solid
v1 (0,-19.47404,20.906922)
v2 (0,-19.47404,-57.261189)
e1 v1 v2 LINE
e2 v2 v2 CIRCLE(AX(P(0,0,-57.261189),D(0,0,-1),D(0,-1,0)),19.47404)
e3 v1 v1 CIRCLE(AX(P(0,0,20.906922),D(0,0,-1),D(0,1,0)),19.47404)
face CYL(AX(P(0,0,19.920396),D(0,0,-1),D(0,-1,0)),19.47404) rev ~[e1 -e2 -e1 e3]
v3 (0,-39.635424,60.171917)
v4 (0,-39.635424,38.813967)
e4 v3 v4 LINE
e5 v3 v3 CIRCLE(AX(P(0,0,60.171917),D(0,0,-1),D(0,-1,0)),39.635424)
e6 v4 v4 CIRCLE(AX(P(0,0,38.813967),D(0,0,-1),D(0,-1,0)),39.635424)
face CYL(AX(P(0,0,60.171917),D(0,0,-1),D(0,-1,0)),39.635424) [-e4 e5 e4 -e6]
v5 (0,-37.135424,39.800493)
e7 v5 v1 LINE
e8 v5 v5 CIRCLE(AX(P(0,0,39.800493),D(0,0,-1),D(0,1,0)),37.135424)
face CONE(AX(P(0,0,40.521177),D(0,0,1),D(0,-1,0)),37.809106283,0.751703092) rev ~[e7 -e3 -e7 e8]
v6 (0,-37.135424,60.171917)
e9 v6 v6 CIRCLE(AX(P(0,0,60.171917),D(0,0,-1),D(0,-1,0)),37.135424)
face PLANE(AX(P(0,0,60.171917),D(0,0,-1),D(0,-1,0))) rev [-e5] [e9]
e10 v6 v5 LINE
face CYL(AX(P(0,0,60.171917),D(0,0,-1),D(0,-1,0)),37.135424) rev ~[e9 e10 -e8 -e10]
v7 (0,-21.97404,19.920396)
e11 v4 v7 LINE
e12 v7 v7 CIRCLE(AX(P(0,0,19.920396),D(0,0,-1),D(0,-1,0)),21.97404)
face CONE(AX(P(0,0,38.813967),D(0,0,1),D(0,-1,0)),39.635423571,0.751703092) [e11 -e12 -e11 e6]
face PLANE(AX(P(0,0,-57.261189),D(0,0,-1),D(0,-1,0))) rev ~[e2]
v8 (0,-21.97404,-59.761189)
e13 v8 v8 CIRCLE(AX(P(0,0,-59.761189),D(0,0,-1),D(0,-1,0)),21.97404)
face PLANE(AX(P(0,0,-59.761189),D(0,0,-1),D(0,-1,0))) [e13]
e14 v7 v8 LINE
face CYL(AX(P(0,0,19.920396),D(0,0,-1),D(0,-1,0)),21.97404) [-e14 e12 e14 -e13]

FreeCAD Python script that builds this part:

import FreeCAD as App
import Part
import Sketcher
Q = App.Units.Quantity


def faces_at(feature, points):
    """Names of the faces that lie closest to the given points."""
    faces = feature.Shape.Faces
    near = lambda p: min(range(len(faces)), key=lambda i: faces[i].distToShape(Part.Vertex(*p))[0])
    return sorted({f"Face{near(p) + 1}" for p in points})

doc = App.newDocument("Part")
params = doc.addObject("Spreadsheet::Sheet", "Params")
for row, (alias, value) in enumerate([
    ("revolution_angle", "360 deg"),
    ("thickness_wall", "2.5 mm"),
], start=1):
    params.set(f"A{row}", alias)
    params.set(f"B{row}", "=" + value)
    params.setAlias(f"B{row}", alias)

body = doc.addObject("PartDesign::Body", "Body")

sketch1 = doc.addObject("Sketcher::SketchObject", "Sketch")
body.addObject(sketch1)
sketch1.AttachmentSupport = (doc.YZ_Plane, [""])
sketch1.MapMode = "FlatFace"
sketch1.addGeometry(Part.LineSegment(App.Vector(-22, -60, 0), App.Vector(0, -60, 0)), False)
sketch1.addGeometry(Part.LineSegment(App.Vector(0, -60, 0), App.Vector(0, 60, 0)), False)
sketch1.addGeometry(Part.LineSegment(App.Vector(0, 60, 0), App.Vector(-40, 60, 0)), False)
sketch1.addGeometry(Part.LineSegment(App.Vector(-40, 60, 0), App.Vector(-40, 39, 0)), False)
sketch1.addGeometry(Part.LineSegment(App.Vector(-40, 39, 0), App.Vector(-22, 20, 0)), False)
sketch1.addGeometry(Part.LineSegment(App.Vector(-22, 20, 0), App.Vector(-22, -60, 0)), False)
sketch1.addConstraint(Sketcher.Constraint("Coincident", 0, 2, 1, 1))
sketch1.addConstraint(Sketcher.Constraint("Coincident", 1, 2, 2, 1))
sketch1.addConstraint(Sketcher.Constraint("Coincident", 2, 2, 3, 1))
sketch1.addConstraint(Sketcher.Constraint("Coincident", 3, 2, 4, 1))
sketch1.addConstraint(Sketcher.Constraint("Coincident", 4, 2, 5, 1))
sketch1.addConstraint(Sketcher.Constraint("Coincident", 5, 2, 0, 1))
sketch1.addConstraint(Sketcher.Constraint("Horizontal", 0))
sketch1.addConstraint(Sketcher.Constraint("Vertical", 1))
sketch1.addConstraint(Sketcher.Constraint("Horizontal", 2))
sketch1.addConstraint(Sketcher.Constraint("Vertical", 3))
sketch1.addConstraint(Sketcher.Constraint("Vertical", 5))
sketch1.addConstraint(Sketcher.Constraint("PointOnObject", 0, 2, -2))
sketch1.addConstraint(Sketcher.Constraint("DistanceX", 0, 1, 0, 2, Q("21.97404 mm")))
sketch1.addConstraint(Sketcher.Constraint("DistanceY", 3, 2, 3, 1, Q("21.35795 mm")))
sketch1.addConstraint(Sketcher.Constraint("DistanceX", 2, 2, 2, 1, Q("39.635424 mm")))
sketch1.addConstraint(Sketcher.Constraint("DistanceY", 1, 1, 1, 2, Q("119.933106 mm")))
sketch1.addConstraint(Sketcher.Constraint("DistanceY", 5, 2, 5, 1, Q("79.681585 mm")))
sketch1.addConstraint(Sketcher.Constraint("DistanceY", 0, 2, -1, 1, Q("59.761189 mm")))
revolution = doc.addObject("PartDesign::Revolution", "Revolution")
body.addObject(revolution)
revolution.Profile = sketch1
revolution.ReferenceAxis = (sketch1, ["V_Axis"])
revolution.setExpression("Angle", "Params.revolution_angle")
doc.recompute()

thickness = doc.addObject("PartDesign::Thickness", "Thickness")
body.addObject(thickness)
thickness.Base = (revolution, faces_at(revolution, [(0, 0, 60.172)]))
thickness.setExpression("Value", "Params.thickness_wall")
thickness.Reversed = True
thickness.Join = "Intersection"

doc.recompute()
